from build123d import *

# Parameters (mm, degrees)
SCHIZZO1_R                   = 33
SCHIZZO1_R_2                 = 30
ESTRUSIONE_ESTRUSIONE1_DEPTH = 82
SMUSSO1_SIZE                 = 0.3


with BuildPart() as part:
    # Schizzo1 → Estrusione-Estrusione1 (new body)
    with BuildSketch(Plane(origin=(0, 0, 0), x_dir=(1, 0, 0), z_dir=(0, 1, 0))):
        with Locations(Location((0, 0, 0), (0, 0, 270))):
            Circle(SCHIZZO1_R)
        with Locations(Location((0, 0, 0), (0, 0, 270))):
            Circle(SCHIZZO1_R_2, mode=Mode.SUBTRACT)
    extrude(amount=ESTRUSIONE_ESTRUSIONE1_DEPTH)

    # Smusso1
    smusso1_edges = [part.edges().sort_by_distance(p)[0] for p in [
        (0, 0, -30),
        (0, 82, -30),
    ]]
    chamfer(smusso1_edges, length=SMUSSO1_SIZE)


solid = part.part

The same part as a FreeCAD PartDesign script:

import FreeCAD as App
import Part
import Sketcher

V = App.Vector
Q = App.Units.Quantity


def edges_at(feature, points):
    """Names of the edges that pass closest to the given points."""
    edges = feature.Shape.Edges
    near = lambda p: min(range(len(edges)), key=lambda i: edges[i].distToShape(Part.Vertex(*p))[0])
    return sorted({f"Edge{near(p) + 1}" for p in points})

doc = App.newDocument("Part")
body = doc.addObject("PartDesign::Body", "Body")

# Sketch on XZ plane
sketch1 = body.newObject("Sketcher::SketchObject", "Sketch")
sketch1.AttachmentSupport = (doc.getObject("XZ_Plane"), [""])
sketch1.MapMode = "FlatFace"
sketch1.addGeometry(Part.Circle(V(0, 0, 0), V(0, 0, 1), 33), False)
sketch1.addGeometry(Part.Circle(V(0, 0, 0), V(0, 0, 1), 30), False)
sketch1.addConstraint(Sketcher.Constraint("Coincident", 0, 3, -1, 1))
sketch1.addConstraint(Sketcher.Constraint("Coincident", 1, 3, -1, 1))
sketch1.addConstraint(Sketcher.Constraint("Diameter", 0, Q("66 mm")))
sketch1.addConstraint(Sketcher.Constraint("Diameter", 1, Q("60 mm")))
pad1 = body.newObject("PartDesign::Pad", "Pad")
pad1.Profile = sketch1
pad1.Length = 82
pad1.Reversed = True
doc.recompute()

chamfer = body.newObject("PartDesign::Chamfer", "Chamfer")
chamfer.Base = (pad1, edges_at(pad1, [(0, 0, -30), (0, 82, -30)]))
chamfer.Size = 0.3

doc.recompute()
